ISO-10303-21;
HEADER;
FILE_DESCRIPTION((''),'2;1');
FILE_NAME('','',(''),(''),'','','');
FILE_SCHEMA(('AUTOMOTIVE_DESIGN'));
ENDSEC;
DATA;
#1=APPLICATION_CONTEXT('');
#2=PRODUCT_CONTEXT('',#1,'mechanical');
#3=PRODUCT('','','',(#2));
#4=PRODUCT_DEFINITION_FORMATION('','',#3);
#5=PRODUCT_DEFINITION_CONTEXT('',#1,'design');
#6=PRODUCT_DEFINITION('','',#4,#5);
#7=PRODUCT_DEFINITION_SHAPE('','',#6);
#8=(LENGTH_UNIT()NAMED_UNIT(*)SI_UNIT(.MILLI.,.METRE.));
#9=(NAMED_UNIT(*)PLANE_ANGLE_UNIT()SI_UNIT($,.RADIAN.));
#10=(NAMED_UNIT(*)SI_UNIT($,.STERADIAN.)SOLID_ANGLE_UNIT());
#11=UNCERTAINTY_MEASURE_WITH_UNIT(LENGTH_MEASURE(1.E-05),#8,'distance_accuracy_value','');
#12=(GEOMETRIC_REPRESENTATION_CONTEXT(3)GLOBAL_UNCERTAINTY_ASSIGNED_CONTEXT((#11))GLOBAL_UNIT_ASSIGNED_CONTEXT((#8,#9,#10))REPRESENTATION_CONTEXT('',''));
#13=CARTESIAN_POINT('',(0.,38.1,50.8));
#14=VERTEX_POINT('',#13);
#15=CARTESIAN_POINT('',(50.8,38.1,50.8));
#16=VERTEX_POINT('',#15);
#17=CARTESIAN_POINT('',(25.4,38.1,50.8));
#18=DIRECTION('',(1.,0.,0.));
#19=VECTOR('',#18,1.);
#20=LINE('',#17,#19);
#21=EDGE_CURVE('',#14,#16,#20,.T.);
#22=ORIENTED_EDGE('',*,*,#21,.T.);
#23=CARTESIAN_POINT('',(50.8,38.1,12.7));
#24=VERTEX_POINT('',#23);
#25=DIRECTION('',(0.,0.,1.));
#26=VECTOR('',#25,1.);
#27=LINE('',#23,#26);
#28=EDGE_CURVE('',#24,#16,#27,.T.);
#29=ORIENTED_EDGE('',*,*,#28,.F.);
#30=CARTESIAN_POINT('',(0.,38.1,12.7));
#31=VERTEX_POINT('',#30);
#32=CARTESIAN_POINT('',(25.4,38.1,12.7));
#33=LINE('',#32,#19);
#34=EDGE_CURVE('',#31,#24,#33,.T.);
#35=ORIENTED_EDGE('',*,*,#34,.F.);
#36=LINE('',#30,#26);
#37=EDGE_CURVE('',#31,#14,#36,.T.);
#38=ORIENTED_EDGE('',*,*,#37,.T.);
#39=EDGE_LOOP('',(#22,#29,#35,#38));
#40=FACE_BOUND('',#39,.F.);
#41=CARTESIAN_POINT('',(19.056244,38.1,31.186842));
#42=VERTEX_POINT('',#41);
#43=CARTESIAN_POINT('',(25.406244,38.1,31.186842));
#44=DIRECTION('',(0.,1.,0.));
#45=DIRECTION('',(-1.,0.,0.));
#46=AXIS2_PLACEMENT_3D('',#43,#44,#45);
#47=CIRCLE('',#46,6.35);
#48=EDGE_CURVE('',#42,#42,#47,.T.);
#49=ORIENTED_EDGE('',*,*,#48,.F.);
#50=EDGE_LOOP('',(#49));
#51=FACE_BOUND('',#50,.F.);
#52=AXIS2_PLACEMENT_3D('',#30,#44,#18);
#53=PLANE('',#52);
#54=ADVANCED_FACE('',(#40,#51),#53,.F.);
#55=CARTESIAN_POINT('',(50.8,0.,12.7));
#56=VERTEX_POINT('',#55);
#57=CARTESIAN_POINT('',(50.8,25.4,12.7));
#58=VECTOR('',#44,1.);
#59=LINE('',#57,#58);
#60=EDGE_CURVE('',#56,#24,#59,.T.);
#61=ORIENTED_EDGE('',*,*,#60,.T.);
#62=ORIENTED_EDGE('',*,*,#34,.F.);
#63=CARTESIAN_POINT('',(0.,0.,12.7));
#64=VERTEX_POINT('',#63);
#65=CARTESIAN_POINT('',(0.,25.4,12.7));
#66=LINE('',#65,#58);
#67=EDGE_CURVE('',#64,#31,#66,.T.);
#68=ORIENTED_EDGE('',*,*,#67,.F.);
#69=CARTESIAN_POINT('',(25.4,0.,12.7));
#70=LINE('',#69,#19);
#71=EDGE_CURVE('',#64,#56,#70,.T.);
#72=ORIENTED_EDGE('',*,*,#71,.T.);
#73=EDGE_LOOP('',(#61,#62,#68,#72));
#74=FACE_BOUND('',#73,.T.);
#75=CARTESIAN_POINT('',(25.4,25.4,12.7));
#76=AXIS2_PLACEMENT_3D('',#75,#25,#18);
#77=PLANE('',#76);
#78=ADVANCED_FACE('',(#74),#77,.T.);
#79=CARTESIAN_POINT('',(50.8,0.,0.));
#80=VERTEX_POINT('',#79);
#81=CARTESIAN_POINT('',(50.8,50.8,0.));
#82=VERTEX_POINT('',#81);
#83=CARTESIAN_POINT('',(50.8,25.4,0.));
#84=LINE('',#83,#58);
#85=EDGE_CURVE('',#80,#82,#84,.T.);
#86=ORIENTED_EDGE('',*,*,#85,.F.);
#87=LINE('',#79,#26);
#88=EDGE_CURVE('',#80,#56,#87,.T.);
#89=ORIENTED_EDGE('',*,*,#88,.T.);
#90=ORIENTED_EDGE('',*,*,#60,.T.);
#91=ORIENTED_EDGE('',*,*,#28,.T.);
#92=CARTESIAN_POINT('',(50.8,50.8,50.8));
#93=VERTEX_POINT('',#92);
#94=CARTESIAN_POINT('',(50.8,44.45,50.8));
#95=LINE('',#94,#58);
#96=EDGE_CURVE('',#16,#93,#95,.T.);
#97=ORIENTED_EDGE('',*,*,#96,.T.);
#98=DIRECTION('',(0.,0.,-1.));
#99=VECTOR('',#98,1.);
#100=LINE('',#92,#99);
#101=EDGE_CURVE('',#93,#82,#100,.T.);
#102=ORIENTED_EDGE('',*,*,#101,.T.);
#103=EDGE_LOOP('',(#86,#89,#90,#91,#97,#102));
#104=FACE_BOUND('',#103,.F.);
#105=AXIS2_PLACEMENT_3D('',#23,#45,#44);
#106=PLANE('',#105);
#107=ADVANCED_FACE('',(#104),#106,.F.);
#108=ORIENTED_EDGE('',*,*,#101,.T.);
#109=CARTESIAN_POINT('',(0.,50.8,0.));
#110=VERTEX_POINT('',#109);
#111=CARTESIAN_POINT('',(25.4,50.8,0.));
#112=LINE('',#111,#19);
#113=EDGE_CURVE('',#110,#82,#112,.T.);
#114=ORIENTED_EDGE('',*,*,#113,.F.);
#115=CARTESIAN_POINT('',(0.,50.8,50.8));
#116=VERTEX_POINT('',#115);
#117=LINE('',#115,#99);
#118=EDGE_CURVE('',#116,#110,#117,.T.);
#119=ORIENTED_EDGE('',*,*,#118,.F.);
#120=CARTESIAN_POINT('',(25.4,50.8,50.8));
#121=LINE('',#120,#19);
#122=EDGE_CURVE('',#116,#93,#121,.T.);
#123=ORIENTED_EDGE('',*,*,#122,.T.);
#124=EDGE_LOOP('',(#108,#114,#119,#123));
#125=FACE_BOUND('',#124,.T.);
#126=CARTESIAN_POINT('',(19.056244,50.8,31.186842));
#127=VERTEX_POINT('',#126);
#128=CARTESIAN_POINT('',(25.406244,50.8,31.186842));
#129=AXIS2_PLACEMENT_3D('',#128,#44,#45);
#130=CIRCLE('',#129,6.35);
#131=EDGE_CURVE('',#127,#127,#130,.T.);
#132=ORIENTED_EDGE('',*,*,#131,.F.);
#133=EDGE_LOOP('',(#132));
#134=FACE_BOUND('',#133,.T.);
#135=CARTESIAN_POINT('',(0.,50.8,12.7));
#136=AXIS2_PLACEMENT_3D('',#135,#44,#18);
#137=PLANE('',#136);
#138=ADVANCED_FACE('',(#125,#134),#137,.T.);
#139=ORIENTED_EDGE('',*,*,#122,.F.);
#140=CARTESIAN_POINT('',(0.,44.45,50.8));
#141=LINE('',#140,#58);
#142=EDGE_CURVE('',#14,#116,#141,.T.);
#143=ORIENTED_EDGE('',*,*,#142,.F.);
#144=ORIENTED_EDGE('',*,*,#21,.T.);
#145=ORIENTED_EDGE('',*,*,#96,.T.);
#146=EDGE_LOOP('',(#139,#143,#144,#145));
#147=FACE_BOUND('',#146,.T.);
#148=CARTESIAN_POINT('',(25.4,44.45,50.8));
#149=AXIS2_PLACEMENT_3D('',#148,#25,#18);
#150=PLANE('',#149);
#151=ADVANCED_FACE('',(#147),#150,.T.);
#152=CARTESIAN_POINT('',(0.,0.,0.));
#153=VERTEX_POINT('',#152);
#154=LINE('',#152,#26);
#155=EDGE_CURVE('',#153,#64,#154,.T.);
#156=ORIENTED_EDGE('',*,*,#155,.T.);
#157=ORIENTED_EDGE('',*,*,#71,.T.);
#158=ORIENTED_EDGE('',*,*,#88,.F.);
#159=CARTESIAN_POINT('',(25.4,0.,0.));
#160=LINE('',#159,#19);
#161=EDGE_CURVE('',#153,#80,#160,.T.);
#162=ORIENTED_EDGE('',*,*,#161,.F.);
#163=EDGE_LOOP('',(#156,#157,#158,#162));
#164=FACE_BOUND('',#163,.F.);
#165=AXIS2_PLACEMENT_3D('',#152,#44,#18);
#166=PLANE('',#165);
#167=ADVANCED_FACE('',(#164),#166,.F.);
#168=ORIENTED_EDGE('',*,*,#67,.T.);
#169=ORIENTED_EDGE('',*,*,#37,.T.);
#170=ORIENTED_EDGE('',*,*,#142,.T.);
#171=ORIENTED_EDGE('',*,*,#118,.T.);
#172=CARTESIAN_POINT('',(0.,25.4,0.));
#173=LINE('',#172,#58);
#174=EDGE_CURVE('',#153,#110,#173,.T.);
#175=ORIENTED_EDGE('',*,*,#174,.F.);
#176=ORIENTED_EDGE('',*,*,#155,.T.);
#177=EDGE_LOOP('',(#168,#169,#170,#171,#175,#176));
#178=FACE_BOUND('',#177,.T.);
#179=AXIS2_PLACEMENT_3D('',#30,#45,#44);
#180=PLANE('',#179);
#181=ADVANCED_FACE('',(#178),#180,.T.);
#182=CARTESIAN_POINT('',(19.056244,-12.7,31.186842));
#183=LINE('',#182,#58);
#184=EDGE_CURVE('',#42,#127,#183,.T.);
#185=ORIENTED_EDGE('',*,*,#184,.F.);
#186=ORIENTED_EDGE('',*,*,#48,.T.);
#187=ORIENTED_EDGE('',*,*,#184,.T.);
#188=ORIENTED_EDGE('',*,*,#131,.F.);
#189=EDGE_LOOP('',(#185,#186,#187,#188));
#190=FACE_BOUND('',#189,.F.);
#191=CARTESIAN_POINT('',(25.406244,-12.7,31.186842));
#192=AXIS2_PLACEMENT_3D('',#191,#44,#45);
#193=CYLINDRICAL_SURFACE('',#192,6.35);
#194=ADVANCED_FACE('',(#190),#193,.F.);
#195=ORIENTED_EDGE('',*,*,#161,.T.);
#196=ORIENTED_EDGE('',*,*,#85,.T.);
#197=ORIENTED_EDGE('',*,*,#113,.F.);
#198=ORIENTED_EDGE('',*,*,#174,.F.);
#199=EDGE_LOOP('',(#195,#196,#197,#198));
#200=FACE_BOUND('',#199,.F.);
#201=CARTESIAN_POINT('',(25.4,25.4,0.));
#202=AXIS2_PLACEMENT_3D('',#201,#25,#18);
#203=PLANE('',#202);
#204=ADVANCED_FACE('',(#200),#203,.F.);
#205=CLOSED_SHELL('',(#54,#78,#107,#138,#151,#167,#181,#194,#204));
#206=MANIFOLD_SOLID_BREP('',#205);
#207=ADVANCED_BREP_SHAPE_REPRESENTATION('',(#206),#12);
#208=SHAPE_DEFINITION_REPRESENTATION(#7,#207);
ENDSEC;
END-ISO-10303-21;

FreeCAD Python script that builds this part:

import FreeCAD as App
import Part
import Sketcher
from FreeCAD import Vector
Q = App.Units.Quantity


def add_polygon(sketch, points):
    """Adds a closed chain of lines whose ends are joined by coincident constraints."""
    first, n = sketch.GeometryCount, len(points)
    for a, b in zip(points, points[1:] + points[:1]):
        sketch.addGeometry(Part.LineSegment(App.Vector(*a, 0), App.Vector(*b, 0)), False)
    for i in range(n):
        sketch.addConstraint(Sketcher.Constraint("Coincident", first + i, 2, first + (i + 1) % n, 1))

doc = App.newDocument("Part")
body = doc.addObject("PartDesign::Body", "Body")

sketch1 = body.newObject("Sketcher::SketchObject", "Sketch")
sketch1.AttachmentSupport = (doc.getObject("XY_Plane"), [""])
sketch1.MapMode = "FlatFace"
add_polygon(sketch1, [(0, 51), (0, 0), (51, 0), (51, 51)])
sketch1.addConstraint(Sketcher.Constraint("Vertical", 0))
sketch1.addConstraint(Sketcher.Constraint("Horizontal", 1))
sketch1.addConstraint(Sketcher.Constraint("Vertical", 2))
sketch1.addConstraint(Sketcher.Constraint("Horizontal", 3))
sketch1.addConstraint(Sketcher.Constraint("Coincident", 0, 2, -1, 1))
sketch1.addConstraint(Sketcher.Constraint("Equal", 3, 0))
sketch1.addConstraint(Sketcher.Constraint("DistanceX", 1, 1, 1, 2, Q("2 in")))
pad1 = body.newObject("PartDesign::Pad", "Pad")
pad1.Profile = sketch1
pad1.Length = Q("0.5 in")

sketch2 = body.newObject("Sketcher::SketchObject", "Sketch001")
sketch2.AttachmentSupport = (doc.getObject("XY_Plane"), [""])
sketch2.MapMode = "FlatFace"
sketch2.AttachmentOffset = App.Placement(Vector(0, 0, 0.5 * 25.4), App.Rotation())
add_polygon(sketch2, [(0, 51), (0, 38), (51, 38), (51, 51)])
sketch2.addConstraint(Sketcher.Constraint("Vertical", 0))
sketch2.addConstraint(Sketcher.Constraint("Horizontal", 1))
sketch2.addConstraint(Sketcher.Constraint("Vertical", 2))
sketch2.addConstraint(Sketcher.Constraint("Horizontal", 3))
sketch2.addConstraint(Sketcher.Constraint("PointOnObject", 0, 2, -2))
sketch2.addConstraint(Sketcher.Constraint("DistanceX", 1, 1, 1, 2, Q("2 in")))
sketch2.addConstraint(Sketcher.Constraint("DistanceY", 0, 2, 0, 1, Q("0.5 in")))
sketch2.addConstraint(Sketcher.Constraint("DistanceY", -1, 1, 2, 2, Q("2 in")))
pad2 = body.newObject("PartDesign::Pad", "Pad001")
pad2.Profile = sketch2
pad2.Length = Q("1.5 in")

sketch3 = body.newObject("Sketcher::SketchObject", "Sketch002")
sketch3.AttachmentSupport = (doc.getObject("XZ_Plane"), [""])
sketch3.MapMode = "FlatFace"
sketch3.AttachmentOffset = App.Placement(Vector(0, 0, -1.5 * 25.4), App.Rotation())
sketch3.addGeometry(Part.Circle(Vector(25, 31, 0), Vector(0, 0, 1), 6), False)
sketch3.addConstraint(Sketcher.Constraint("Diameter", 0, Q("0.5 in")))
sketch3.addConstraint(Sketcher.Constraint("DistanceY", -1, 1, 0, 3, 31.186842))
sketch3.addConstraint(Sketcher.Constraint("DistanceX", -1, 1, 0, 3, 25.406244))
doc.recompute()
hole = body.newObject("PartDesign::Hole", "Hole")
hole.Profile = sketch3
hole.ThreadType = "None"
hole.Diameter = Q("0.5 in")
hole.DepthType = "Dimension"
hole.Depth = Q("2 in")
hole.DrillPoint = "Flat"

doc.recompute()
